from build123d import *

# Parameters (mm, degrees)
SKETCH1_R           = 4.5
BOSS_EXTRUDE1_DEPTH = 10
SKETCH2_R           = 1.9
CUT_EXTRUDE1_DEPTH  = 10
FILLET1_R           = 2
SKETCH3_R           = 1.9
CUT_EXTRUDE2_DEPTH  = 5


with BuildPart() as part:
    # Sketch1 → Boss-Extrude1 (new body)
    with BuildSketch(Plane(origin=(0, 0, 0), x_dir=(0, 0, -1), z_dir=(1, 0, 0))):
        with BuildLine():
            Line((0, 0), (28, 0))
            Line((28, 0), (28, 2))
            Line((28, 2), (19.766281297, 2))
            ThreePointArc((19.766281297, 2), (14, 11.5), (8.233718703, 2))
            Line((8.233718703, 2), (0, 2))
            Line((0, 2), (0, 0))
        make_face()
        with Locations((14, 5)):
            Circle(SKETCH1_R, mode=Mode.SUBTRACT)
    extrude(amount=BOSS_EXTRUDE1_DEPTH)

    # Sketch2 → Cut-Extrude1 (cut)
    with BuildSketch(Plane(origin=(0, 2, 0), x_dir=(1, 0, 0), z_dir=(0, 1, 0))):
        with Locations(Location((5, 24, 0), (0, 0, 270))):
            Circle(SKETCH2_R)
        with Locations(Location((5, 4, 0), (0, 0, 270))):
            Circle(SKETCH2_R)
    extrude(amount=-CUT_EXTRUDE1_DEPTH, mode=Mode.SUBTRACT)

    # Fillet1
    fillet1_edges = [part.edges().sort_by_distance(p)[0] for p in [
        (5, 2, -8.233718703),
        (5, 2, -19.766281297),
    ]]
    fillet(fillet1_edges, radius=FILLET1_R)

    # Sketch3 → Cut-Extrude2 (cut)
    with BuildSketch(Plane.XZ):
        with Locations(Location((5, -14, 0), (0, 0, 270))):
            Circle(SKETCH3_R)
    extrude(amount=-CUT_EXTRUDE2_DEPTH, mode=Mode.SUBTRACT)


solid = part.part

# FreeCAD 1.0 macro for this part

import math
import FreeCAD as App
import Part
import Sketcher
from FreeCAD import Vector
Q = App.Units.Quantity


def edges_at(feature, points):
    """Names of the edges that pass closest to the given points."""
    edges = feature.Shape.Edges
    near = lambda p: min(range(len(edges)), key=lambda i: edges[i].distToShape(Part.Vertex(*p))[0])
    return sorted({f"Edge{near(p) + 1}" for p in points})

doc = App.newDocument("Part")
body = doc.addObject("PartDesign::Body", "Body")

sketch1 = body.newObject("Sketcher::SketchObject", "Sketch")
sketch1.AttachmentSupport = (doc.getObject("YZ_Plane"), [""])
sketch1.MapMode = "FlatFace"
sketch1.addGeometry(Part.LineSegment(Vector(0, 0, 0), Vector(0, -28, 0)), False)
sketch1.addGeometry(Part.LineSegment(Vector(0, -28, 0), Vector(2, -28, 0)), False)
sketch1.addGeometry(Part.LineSegment(Vector(2, -28, 0), Vector(2, -19.8, 0)), False)
sketch1.addGeometry(Part.ArcOfCircle(Part.Circle(Vector(5, -14, 0), Vector(0, 0, 1), 6.5), math.radians(-117), math.radians(117)), False)
sketch1.addGeometry(Part.LineSegment(Vector(2, -8.2, 0), Vector(2, 0, 0)), False)
sketch1.addGeometry(Part.LineSegment(Vector(2, 0, 0), Vector(0, 0, 0)), False)
sketch1.addGeometry(Part.Circle(Vector(5, -14, 0), Vector(0, 0, 1), 4.5), False)
sketch1.addConstraint(Sketcher.Constraint("Coincident", 0, 2, 1, 1))
sketch1.addConstraint(Sketcher.Constraint("Coincident", 1, 2, 2, 1))
sketch1.addConstraint(Sketcher.Constraint("Coincident", 2, 2, 3, 1))
sketch1.addConstraint(Sketcher.Constraint("Coincident", 3, 2, 4, 1))
sketch1.addConstraint(Sketcher.Constraint("Coincident", 4, 2, 5, 1))
sketch1.addConstraint(Sketcher.Constraint("Coincident", 5, 2, 0, 1))
sketch1.addConstraint(Sketcher.Constraint("Vertical", 0))
sketch1.addConstraint(Sketcher.Constraint("Horizontal", 1))
sketch1.addConstraint(Sketcher.Constraint("Vertical", 2))
sketch1.addConstraint(Sketcher.Constraint("Vertical", 4))
sketch1.addConstraint(Sketcher.Constraint("Horizontal", 5))
sketch1.addConstraint(Sketcher.Constraint("Coincident", 5, 2, -1, 1))
sketch1.addConstraint(Sketcher.Constraint("Coincident", 6, 3, 3, 3))
sketch1.addConstraint(Sketcher.Constraint("Vertical", 2, 2, 3, 2))
sketch1.addConstraint(Sketcher.Constraint("Equal", 2, 4))
sketch1.addConstraint(Sketcher.Constraint("Diameter", 6, Q("9 mm")))
sketch1.addConstraint(Sketcher.Constraint("Radius", 3, Q("6.5 mm")))
sketch1.addConstraint(Sketcher.Constraint("DistanceX", 1, 1, 1, 2, Q("2 mm")))
sketch1.addConstraint(Sketcher.Constraint("DistanceY", 0, 2, 0, 1, Q("28 mm")))
sketch1.addConstraint(Sketcher.Constraint("DistanceX", -1, 1, 3, 3, Q("5 mm")))
pad1 = body.newObject("PartDesign::Pad", "Pad")
pad1.Profile = sketch1
pad1.Length = 10

sketch2 = body.newObject("Sketcher::SketchObject", "Sketch001")
sketch2.AttachmentSupport = (doc.getObject("XZ_Plane"), [""])
sketch2.MapMode = "FlatFace"
sketch2.AttachmentOffset = App.Placement(Vector(0, 0, -2), App.Rotation())
sketch2.addGeometry(Part.Circle(Vector(5, -24, 0), Vector(0, 0, 1), 1.9), False)
sketch2.addGeometry(Part.Circle(Vector(5, -4, 0), Vector(0, 0, 1), 1.9), False)
sketch2.addConstraint(Sketcher.Constraint("Equal", 0, 1))
sketch2.addConstraint(Sketcher.Constraint("Vertical", 0, 3, 1, 3))
sketch2.addConstraint(Sketcher.Constraint("Diameter", 0, Q("3.8 mm")))
sketch2.addConstraint(Sketcher.Constraint("DistanceX", -1, 1, 0, 3, Q("5 mm")))
sketch2.addConstraint(Sketcher.Constraint("DistanceY", 0, 3, -1, 1, Q("24 mm")))
sketch2.addConstraint(Sketcher.Constraint("DistanceY", 1, 3, -1, 1, Q("4 mm")))
pocket1 = body.newObject("PartDesign::Pocket", "Pocket")
pocket1.Profile = sketch2
pocket1.Length = 10
pocket1.Reversed = True
doc.recompute()

fillet = body.newObject("PartDesign::Fillet", "Fillet")
fillet.Base = (pocket1, edges_at(pocket1, [(5, 2, -8.234), (5, 2, -19.766)]))
fillet.Radius = 2

sketch3 = body.newObject("Sketcher::SketchObject", "Sketch002")
sketch3.AttachmentSupport = (doc.getObject("XZ_Plane"), [""])
sketch3.MapMode = "FlatFace"
sketch3.addGeometry(Part.Circle(Vector(5, -14, 0), Vector(0, 0, 1), 1.9), False)
sketch3.addConstraint(Sketcher.Constraint("Diameter", 0, Q("3.8 mm")))
sketch3.addConstraint(Sketcher.Constraint("DistanceX", -1, 1, 0, 3, Q("5 mm")))
sketch3.addConstraint(Sketcher.Constraint("DistanceY", 0, 3, -1, 1, Q("14 mm")))
pocket2 = body.newObject("PartDesign::Pocket", "Pocket001")
pocket2.Profile = sketch3
pocket2.Length = 5

doc.recompute()
